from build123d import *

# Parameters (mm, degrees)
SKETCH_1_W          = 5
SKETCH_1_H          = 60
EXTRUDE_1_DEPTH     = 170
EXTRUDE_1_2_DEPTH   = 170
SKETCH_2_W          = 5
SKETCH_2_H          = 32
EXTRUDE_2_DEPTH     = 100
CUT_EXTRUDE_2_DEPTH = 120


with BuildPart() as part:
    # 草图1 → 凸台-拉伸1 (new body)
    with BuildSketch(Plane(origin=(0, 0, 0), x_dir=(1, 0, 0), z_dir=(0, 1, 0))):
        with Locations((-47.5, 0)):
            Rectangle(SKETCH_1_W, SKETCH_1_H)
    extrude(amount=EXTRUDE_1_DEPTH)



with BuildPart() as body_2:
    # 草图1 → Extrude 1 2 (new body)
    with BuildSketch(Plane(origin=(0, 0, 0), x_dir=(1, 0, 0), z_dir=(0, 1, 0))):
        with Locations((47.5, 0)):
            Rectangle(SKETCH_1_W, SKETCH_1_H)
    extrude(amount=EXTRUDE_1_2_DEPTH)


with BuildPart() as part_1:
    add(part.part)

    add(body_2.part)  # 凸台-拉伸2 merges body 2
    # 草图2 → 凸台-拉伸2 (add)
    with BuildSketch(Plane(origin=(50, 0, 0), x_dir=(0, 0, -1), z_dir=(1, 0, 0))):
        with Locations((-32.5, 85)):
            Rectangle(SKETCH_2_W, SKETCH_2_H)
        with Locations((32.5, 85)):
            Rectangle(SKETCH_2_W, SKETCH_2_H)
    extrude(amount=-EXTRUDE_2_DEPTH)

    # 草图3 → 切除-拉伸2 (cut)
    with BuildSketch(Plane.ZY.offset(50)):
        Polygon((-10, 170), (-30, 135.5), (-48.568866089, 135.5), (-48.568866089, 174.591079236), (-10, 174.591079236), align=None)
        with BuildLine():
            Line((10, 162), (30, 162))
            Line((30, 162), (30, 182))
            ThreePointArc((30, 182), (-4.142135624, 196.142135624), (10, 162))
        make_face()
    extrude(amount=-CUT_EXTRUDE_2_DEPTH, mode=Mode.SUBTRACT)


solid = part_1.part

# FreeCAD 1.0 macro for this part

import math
import FreeCAD as App
import Part
import Sketcher

V = App.Vector
Q = App.Units.Quantity

doc = App.newDocument("Part")
body = doc.addObject("PartDesign::Body", "Body")

sketch1 = body.newObject("Sketcher::SketchObject", "Sketch")
sketch1.AttachmentSupport = (doc.getObject("XZ_Plane"), [""])
sketch1.MapMode = "FlatFace"
sketch1.addGeometry([
    Part.LineSegment(V(-50, -30, 0), V(-50, 30, 0)),
    Part.LineSegment(V(-50, 30, 0), V(-45, 30, 0)),
    Part.LineSegment(V(-45, 30, 0), V(-45, -30, 0)),
    Part.LineSegment(V(-45, -30, 0), V(-50, -30, 0)),
], False)
sketch1.addConstraint([
    Sketcher.Constraint("Coincident", 0, 2, 1, 1),
    Sketcher.Constraint("Coincident", 1, 2, 2, 1),
    Sketcher.Constraint("Coincident", 2, 2, 3, 1),
    Sketcher.Constraint("Coincident", 3, 2, 0, 1),
    Sketcher.Constraint("Vertical", 0),
    Sketcher.Constraint("Horizontal", 1),
    Sketcher.Constraint("Vertical", 2),
    Sketcher.Constraint("Horizontal", 3),
    Sketcher.Constraint("DistanceX", 1, 1, 1, 2, Q("5 mm")),
    Sketcher.Constraint("DistanceY", 0, 1, 0, 2, Q("60 mm")),
    Sketcher.Constraint("DistanceX", 0, 2, -1, 1, Q("50 mm")),
    Sketcher.Constraint("DistanceY", -1, 1, 0, 2, Q("30 mm")),
])
pad1 = body.newObject("PartDesign::Pad", "Pad")
pad1.Profile = sketch1
pad1.Length = 170
pad1.Reversed = True
body2 = doc.addObject("PartDesign::Body", "Body001")

sketch2 = body2.newObject("Sketcher::SketchObject", "Sketch001")
sketch2.AttachmentSupport = (doc.getObject("XZ_Plane001"), [""])
sketch2.MapMode = "FlatFace"
sketch2.addGeometry([
    Part.LineSegment(V(45, -30, 0), V(45, 30, 0)),
    Part.LineSegment(V(45, 30, 0), V(50, 30, 0)),
    Part.LineSegment(V(50, 30, 0), V(50, -30, 0)),
    Part.LineSegment(V(50, -30, 0), V(45, -30, 0)),
], False)
sketch2.addConstraint([
    Sketcher.Constraint("Coincident", 0, 2, 1, 1),
    Sketcher.Constraint("Coincident", 1, 2, 2, 1),
    Sketcher.Constraint("Coincident", 2, 2, 3, 1),
    Sketcher.Constraint("Coincident", 3, 2, 0, 1),
    Sketcher.Constraint("Vertical", 0),
    Sketcher.Constraint("Horizontal", 1),
    Sketcher.Constraint("Vertical", 2),
    Sketcher.Constraint("Horizontal", 3),
    Sketcher.Constraint("DistanceX", 1, 1, 1, 2, Q("5 mm")),
    Sketcher.Constraint("DistanceY", 0, 1, 0, 2, Q("60 mm")),
    Sketcher.Constraint("DistanceX", -1, 1, 0, 2, Q("45 mm")),
    Sketcher.Constraint("DistanceY", -1, 1, 0, 2, Q("30 mm")),
])
pad2 = body2.newObject("PartDesign::Pad", "Pad001")
pad2.Profile = sketch2
pad2.Length = 170
pad2.Reversed = True
body.AllowCompound = True
doc.recompute()

boolean = body.newObject("PartDesign::Boolean", "Boolean")
boolean.Type = "Fuse"
boolean.addObjects([body2])

sketch3 = body.newObject("Sketcher::SketchObject", "Sketch002")
sketch3.AttachmentSupport = (doc.getObject("YZ_Plane"), [""])
sketch3.MapMode = "FlatFace"
sketch3.AttachmentOffset = App.Placement(V(0, 0, 50), App.Rotation())
sketch3.addGeometry([
    Part.LineSegment(V(101, 35, 0), V(69, 35, 0)),
    Part.LineSegment(V(69, 35, 0), V(69, 30, 0)),
    Part.LineSegment(V(69, 30, 0), V(101, 30, 0)),
    Part.LineSegment(V(101, 30, 0), V(101, 35, 0)),
    Part.LineSegment(V(101, -30, 0), V(69, -30, 0)),
    Part.LineSegment(V(69, -30, 0), V(69, -35, 0)),
    Part.LineSegment(V(69, -35, 0), V(101, -35, 0)),
    Part.LineSegment(V(101, -35, 0), V(101, -30, 0)),
], False)
sketch3.addConstraint([
    Sketcher.Constraint("Coincident", 0, 2, 1, 1),
    Sketcher.Constraint("Coincident", 1, 2, 2, 1),
    Sketcher.Constraint("Coincident", 2, 2, 3, 1),
    Sketcher.Constraint("Coincident", 3, 2, 0, 1),
    Sketcher.Constraint("Coincident", 4, 2, 5, 1),
    Sketcher.Constraint("Coincident", 5, 2, 6, 1),
    Sketcher.Constraint("Coincident", 6, 2, 7, 1),
    Sketcher.Constraint("Coincident", 7, 2, 4, 1),
    Sketcher.Constraint("Horizontal", 0),
    Sketcher.Constraint("Vertical", 1),
    Sketcher.Constraint("Horizontal", 2),
    Sketcher.Constraint("Vertical", 3),
    Sketcher.Constraint("Horizontal", 4),
    Sketcher.Constraint("Vertical", 5),
    Sketcher.Constraint("Horizontal", 6),
    Sketcher.Constraint("Vertical", 7),
    Sketcher.Constraint("Symmetric", 1, 2, 4, 2, -1),
    Sketcher.Constraint("Symmetric", 3, 2, 6, 2, -1),
    Sketcher.Constraint("DistanceX", 0, 2, 0, 1, Q("32 mm")),
    Sketcher.Constraint("DistanceY", 1, 2, 1, 1, Q("5 mm")),
    Sketcher.Constraint("DistanceX", -1, 1, 0, 2, Q("69 mm")),
    Sketcher.Constraint("DistanceY", -1, 1, 0, 2, Q("35 mm")),
])
pad3 = body.newObject("PartDesign::Pad", "Pad002")
pad3.Profile = sketch3
pad3.Length = 100
pad3.Reversed = True

sketch4 = body.newObject("Sketcher::SketchObject", "Sketch003")
sketch4.AttachmentSupport = (doc.getObject("YZ_Plane"), [""])
sketch4.MapMode = "FlatFace"
sketch4.AttachmentOffset = App.Placement(V(0, 0, -50), App.Rotation())
sketch4.addGeometry([
    Part.LineSegment(V(135.5, -30, 0), V(170, -10, 0)),
    Part.LineSegment(V(170, -10, 0), V(174.6, -10, 0)),
    Part.LineSegment(V(174.6, -10, 0), V(174.6, -48.6, 0)),
    Part.LineSegment(V(174.6, -48.6, 0), V(135.5, -48.6, 0)),
    Part.LineSegment(V(135.5, -48.6, 0), V(135.5, -30, 0)),
    Part.LineSegment(V(162, 10, 0), V(162, 30, 0)),
    Part.LineSegment(V(162, 30, 0), V(182, 30, 0)),
    Part.ArcOfCircle(Part.Circle(V(182, 10, 0), V(0, 0, 1), 20), math.radians(180), math.radians(450)),
], False)
sketch4.addConstraint([
    Sketcher.Constraint("Coincident", 0, 2, 1, 1),
    Sketcher.Constraint("Coincident", 1, 2, 2, 1),
    Sketcher.Constraint("Coincident", 2, 2, 3, 1),
    Sketcher.Constraint("Coincident", 3, 2, 4, 1),
    Sketcher.Constraint("Coincident", 4, 2, 0, 1),
    Sketcher.Constraint("Coincident", 5, 2, 6, 1),
    Sketcher.Constraint("Tangent", 6, 2, 7, 2),
    Sketcher.Constraint("Tangent", 7, 1, 5, 1),
    Sketcher.Constraint("Horizontal", 1),
    Sketcher.Constraint("Vertical", 2),
    Sketcher.Constraint("Horizontal", 3),
    Sketcher.Constraint("Vertical", 4),
    Sketcher.Constraint("Vertical", 5),
    Sketcher.Constraint("Horizontal", 6),
    Sketcher.Constraint("Radius", 7, Q("20 mm")),
    Sketcher.Constraint("DistanceX", -1, 1, 7, 3, Q("182 mm")),
    Sketcher.Constraint("DistanceY", -1, 1, 7, 3, Q("10 mm")),
    Sketcher.Constraint("DistanceX", -1, 1, 0, 2, Q("170 mm")),
    Sketcher.Constraint("DistanceY", 0, 2, -1, 1, Q("10 mm")),
    Sketcher.Constraint("DistanceY", 4, 2, -1, 1, Q("30 mm")),
    Sketcher.Constraint("DistanceX", -1, 1, 3, 2, Q("135.5 mm")),
    Sketcher.Constraint("DistanceX", 1, 1, 1, 2, Q("4.591079 mm")),
    Sketcher.Constraint("DistanceY", 2, 2, 2, 1, Q("38.568866 mm")),
])
pocket1 = body.newObject("PartDesign::Pocket", "Pocket")
pocket1.Profile = sketch4
pocket1.Length = 120
pocket1.Reversed = True

doc.recompute()
